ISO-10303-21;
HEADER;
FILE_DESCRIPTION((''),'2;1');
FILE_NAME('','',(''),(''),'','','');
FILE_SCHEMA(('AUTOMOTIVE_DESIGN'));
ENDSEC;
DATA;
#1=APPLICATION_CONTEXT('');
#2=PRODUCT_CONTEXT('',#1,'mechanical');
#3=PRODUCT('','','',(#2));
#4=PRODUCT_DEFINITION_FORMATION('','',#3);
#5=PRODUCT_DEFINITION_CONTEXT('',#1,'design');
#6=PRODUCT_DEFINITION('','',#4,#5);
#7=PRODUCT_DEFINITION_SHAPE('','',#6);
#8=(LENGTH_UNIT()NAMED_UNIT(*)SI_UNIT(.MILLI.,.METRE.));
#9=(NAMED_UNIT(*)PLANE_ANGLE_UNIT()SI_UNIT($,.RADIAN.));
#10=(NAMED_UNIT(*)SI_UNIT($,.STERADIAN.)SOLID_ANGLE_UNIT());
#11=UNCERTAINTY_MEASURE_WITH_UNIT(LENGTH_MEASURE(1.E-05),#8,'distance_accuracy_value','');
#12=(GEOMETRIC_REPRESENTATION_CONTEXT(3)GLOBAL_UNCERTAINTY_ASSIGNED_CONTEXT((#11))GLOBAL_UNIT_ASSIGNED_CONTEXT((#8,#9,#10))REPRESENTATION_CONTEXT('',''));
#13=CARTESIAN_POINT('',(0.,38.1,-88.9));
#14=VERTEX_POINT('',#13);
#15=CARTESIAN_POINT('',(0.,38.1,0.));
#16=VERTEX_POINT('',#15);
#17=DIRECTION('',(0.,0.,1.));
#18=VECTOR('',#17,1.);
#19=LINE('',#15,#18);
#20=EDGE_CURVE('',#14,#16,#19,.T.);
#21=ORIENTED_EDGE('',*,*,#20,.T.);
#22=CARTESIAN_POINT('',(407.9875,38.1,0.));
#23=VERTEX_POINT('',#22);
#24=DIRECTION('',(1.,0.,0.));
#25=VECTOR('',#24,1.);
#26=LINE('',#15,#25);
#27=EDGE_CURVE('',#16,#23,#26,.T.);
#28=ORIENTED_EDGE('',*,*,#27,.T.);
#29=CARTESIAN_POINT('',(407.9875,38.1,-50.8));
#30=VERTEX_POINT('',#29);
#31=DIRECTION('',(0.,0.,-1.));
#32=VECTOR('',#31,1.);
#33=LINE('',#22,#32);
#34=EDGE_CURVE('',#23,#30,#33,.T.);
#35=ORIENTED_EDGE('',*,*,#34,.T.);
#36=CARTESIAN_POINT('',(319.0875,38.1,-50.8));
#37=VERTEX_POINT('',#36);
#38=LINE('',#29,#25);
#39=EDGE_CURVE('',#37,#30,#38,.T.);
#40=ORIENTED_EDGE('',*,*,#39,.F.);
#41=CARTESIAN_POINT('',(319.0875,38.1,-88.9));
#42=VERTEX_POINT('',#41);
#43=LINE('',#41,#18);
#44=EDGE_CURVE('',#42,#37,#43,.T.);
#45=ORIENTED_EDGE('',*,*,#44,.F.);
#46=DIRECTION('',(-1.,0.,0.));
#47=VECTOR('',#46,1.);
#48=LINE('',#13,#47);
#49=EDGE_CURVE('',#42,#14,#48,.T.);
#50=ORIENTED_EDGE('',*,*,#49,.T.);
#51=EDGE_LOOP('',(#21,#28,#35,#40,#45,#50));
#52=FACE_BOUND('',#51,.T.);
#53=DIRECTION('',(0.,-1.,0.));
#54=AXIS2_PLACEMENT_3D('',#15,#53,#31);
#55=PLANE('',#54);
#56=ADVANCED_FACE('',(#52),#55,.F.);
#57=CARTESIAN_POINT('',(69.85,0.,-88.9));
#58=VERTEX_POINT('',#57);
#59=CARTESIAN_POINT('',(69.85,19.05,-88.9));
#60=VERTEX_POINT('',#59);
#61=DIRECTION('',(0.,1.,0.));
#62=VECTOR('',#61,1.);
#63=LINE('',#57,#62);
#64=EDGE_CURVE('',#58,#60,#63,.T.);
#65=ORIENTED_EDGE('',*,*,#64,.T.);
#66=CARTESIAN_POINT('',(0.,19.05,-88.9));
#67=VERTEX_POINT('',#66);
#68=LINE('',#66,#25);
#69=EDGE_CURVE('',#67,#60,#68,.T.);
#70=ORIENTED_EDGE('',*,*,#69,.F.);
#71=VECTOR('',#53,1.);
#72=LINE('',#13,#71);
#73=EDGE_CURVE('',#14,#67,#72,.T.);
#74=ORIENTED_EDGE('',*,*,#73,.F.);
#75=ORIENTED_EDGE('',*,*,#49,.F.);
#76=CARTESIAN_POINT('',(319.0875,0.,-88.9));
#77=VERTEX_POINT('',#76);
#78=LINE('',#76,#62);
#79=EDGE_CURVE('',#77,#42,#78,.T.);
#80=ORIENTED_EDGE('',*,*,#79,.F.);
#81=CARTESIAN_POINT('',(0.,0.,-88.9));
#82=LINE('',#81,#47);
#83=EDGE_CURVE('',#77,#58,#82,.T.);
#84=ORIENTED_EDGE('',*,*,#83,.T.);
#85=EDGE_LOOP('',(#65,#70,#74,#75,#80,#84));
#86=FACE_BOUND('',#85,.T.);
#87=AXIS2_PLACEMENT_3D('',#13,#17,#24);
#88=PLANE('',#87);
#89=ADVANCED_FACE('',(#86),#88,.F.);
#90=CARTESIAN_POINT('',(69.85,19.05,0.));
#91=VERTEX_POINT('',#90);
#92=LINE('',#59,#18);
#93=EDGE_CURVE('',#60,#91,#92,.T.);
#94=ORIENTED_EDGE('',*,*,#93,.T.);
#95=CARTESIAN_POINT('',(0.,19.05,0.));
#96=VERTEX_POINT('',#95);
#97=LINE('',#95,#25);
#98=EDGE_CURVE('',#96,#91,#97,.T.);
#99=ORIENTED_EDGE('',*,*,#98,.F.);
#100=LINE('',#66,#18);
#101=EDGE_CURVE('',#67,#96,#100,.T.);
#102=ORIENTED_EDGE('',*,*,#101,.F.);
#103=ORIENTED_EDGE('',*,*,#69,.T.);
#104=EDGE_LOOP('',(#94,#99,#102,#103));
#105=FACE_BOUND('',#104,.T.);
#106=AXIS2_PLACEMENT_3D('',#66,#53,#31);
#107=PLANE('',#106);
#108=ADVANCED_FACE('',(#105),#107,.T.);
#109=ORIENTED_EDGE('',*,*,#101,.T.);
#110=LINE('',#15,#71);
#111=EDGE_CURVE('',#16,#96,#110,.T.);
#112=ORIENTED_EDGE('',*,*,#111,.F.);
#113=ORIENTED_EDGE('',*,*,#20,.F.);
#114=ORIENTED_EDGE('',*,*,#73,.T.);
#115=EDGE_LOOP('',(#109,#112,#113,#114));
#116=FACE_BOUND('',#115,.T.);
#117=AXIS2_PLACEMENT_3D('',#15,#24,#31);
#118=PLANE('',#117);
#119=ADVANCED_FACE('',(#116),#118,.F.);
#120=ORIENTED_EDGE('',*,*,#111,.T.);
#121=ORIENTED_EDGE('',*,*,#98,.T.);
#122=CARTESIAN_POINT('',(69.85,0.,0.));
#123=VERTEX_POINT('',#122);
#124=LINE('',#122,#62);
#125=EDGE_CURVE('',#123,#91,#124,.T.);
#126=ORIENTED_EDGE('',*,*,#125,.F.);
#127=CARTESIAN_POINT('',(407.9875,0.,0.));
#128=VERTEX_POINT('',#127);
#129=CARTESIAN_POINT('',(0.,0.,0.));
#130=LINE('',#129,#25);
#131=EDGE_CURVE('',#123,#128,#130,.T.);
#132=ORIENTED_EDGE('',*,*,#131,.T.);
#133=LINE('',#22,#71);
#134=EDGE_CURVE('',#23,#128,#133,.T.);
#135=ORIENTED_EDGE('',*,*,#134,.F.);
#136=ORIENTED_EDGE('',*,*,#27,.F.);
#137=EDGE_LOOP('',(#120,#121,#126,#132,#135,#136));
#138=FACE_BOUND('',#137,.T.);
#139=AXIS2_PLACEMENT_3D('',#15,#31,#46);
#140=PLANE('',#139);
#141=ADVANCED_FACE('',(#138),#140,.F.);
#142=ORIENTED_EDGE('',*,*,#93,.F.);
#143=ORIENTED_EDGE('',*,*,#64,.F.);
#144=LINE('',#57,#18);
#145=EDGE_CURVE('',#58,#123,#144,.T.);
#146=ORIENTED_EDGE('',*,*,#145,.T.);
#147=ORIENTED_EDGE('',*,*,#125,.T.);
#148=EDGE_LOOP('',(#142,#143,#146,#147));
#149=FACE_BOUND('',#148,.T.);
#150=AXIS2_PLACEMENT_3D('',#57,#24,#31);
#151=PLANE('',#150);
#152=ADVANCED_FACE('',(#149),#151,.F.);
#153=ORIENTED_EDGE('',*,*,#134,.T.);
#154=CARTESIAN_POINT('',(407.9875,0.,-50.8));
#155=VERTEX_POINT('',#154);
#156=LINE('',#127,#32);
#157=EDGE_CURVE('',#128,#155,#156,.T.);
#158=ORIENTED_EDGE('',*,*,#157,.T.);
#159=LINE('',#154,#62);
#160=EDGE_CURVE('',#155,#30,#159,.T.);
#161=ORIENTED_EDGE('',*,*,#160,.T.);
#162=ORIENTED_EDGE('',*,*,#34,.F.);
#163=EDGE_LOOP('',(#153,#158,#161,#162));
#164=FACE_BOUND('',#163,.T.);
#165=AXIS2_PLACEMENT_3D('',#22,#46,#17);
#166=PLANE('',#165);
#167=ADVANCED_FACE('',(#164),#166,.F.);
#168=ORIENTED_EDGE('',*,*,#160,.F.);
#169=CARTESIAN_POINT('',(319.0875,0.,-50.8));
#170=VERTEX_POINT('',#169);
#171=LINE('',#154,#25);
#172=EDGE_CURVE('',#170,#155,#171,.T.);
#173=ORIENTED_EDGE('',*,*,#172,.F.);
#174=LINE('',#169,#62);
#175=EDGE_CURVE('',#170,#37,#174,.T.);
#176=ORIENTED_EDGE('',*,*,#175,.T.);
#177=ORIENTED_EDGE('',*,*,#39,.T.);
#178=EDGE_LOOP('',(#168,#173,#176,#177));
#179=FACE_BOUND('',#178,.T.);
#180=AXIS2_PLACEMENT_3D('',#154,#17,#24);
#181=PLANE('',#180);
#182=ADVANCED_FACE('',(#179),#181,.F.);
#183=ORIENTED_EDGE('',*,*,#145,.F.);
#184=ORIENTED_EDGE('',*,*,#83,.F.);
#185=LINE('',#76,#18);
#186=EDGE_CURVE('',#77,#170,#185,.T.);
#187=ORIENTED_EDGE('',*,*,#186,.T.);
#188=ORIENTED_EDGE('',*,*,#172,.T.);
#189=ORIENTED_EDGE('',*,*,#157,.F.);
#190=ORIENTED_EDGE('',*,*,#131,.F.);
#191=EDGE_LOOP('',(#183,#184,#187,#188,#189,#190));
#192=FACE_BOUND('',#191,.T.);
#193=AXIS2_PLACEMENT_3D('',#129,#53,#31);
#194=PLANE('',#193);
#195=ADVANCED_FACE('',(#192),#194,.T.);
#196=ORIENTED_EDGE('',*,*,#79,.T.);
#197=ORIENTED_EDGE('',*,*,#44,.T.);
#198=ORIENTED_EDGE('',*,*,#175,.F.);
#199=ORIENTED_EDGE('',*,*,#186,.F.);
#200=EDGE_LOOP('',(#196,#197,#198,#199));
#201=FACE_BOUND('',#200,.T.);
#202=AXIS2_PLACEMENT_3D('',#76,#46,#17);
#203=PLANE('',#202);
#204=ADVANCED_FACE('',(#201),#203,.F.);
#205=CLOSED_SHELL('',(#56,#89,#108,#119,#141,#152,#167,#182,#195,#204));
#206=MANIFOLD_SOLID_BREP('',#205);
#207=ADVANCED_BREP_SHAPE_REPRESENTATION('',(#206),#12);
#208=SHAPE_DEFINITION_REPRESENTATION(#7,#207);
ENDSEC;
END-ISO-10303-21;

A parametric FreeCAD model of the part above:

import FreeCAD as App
import Part
import Sketcher
Q = App.Units.Quantity

doc = App.newDocument("Part")
body = doc.addObject("PartDesign::Body", "Body")

# Sketch on XZ plane
sketch1 = body.newObject("Sketcher::SketchObject", "Sketch")
sketch1.AttachmentSupport = (doc.getObject("XZ_Plane"), [""])
sketch1.MapMode = "FlatFace"
sketch1.addGeometry(Part.LineSegment(App.Vector(0, -89, 0), App.Vector(0, 0, 0)), False)
sketch1.addGeometry(Part.LineSegment(App.Vector(0, 0, 0), App.Vector(408, 0, 0)), False)
sketch1.addGeometry(Part.LineSegment(App.Vector(408, 0, 0), App.Vector(408, -89, 0)), False)
sketch1.addGeometry(Part.LineSegment(App.Vector(408, -89, 0), App.Vector(0, -89, 0)), False)
sketch1.addConstraint(Sketcher.Constraint("Coincident", 0, 2, 1, 1))
sketch1.addConstraint(Sketcher.Constraint("Coincident", 1, 2, 2, 1))
sketch1.addConstraint(Sketcher.Constraint("Coincident", 2, 2, 3, 1))
sketch1.addConstraint(Sketcher.Constraint("Coincident", 3, 2, 0, 1))
sketch1.addConstraint(Sketcher.Constraint("Vertical", 0))
sketch1.addConstraint(Sketcher.Constraint("Horizontal", 1))
sketch1.addConstraint(Sketcher.Constraint("Vertical", 2))
sketch1.addConstraint(Sketcher.Constraint("Horizontal", 3))
sketch1.addConstraint(Sketcher.Constraint("Coincident", 0, 2, -1, 1))
sketch1.addConstraint(Sketcher.Constraint("DistanceY", 0, 1, 0, 2, Q("3.5 in")))
sketch1.addConstraint(Sketcher.Constraint("DistanceX", 1, 1, 1, 2, Q("16.0625 in")))
pad1 = body.newObject("PartDesign::Pad", "Pad")
pad1.Profile = sketch1
pad1.Length = Q("1.5 in")
pad1.Reversed = True

# Sketch on XZ plane
sketch2 = body.newObject("Sketcher::SketchObject", "Sketch001")
sketch2.AttachmentSupport = (doc.getObject("XZ_Plane"), [""])
sketch2.MapMode = "FlatFace"
sketch2.AttachmentOffset = App.Placement(App.Vector(0, 0, -1.5 * 25.4), App.Rotation())
sketch2.addGeometry(Part.LineSegment(App.Vector(319, -89, 0), App.Vector(319, -51, 0)), False)
sketch2.addGeometry(Part.LineSegment(App.Vector(319, -51, 0), App.Vector(408, -51, 0)), False)
sketch2.addGeometry(Part.LineSegment(App.Vector(408, -51, 0), App.Vector(408, -89, 0)), False)
sketch2.addGeometry(Part.LineSegment(App.Vector(408, -89, 0), App.Vector(319, -89, 0)), False)
sketch2.addConstraint(Sketcher.Constraint("Coincident", 0, 2, 1, 1))
sketch2.addConstraint(Sketcher.Constraint("Coincident", 1, 2, 2, 1))
sketch2.addConstraint(Sketcher.Constraint("Coincident", 2, 2, 3, 1))
sketch2.addConstraint(Sketcher.Constraint("Coincident", 3, 2, 0, 1))
sketch2.addConstraint(Sketcher.Constraint("Vertical", 0))
sketch2.addConstraint(Sketcher.Constraint("Horizontal", 1))
sketch2.addConstraint(Sketcher.Constraint("Vertical", 2))
sketch2.addConstraint(Sketcher.Constraint("Horizontal", 3))
sketch2.addConstraint(Sketcher.Constraint("DistanceX", 1, 1, 1, 2, Q("3.5 in")))
sketch2.addConstraint(Sketcher.Constraint("DistanceY", 0, 1, 0, 2, Q("1.5 in")))
sketch2.addConstraint(Sketcher.Constraint("DistanceY", 0, 2, -1, 1, Q("2 in")))
sketch2.addConstraint(Sketcher.Constraint("DistanceX", -1, 1, 0, 2, Q("12.5625 in")))
pocket1 = body.newObject("PartDesign::Pocket", "Pocket")
pocket1.Profile = sketch2
pocket1.Type = "ThroughAll"
pocket1.Reversed = True

# Sketch on XY plane
sketch3 = body.newObject("Sketcher::SketchObject", "Sketch002")
sketch3.AttachmentSupport = (doc.getObject("XY_Plane"), [""])
sketch3.MapMode = "FlatFace"
sketch3.addGeometry(Part.LineSegment(App.Vector(0, 19, 0), App.Vector(0, 0, 0)), False)
sketch3.addGeometry(Part.LineSegment(App.Vector(0, 0, 0), App.Vector(70, 0, 0)), False)
sketch3.addGeometry(Part.LineSegment(App.Vector(70, 0, 0), App.Vector(70, 19, 0)), False)
sketch3.addGeometry(Part.LineSegment(App.Vector(70, 19, 0), App.Vector(0, 19, 0)), False)
sketch3.addConstraint(Sketcher.Constraint("Coincident", 0, 2, 1, 1))
sketch3.addConstraint(Sketcher.Constraint("Coincident", 1, 2, 2, 1))
sketch3.addConstraint(Sketcher.Constraint("Coincident", 2, 2, 3, 1))
sketch3.addConstraint(Sketcher.Constraint("Coincident", 3, 2, 0, 1))
sketch3.addConstraint(Sketcher.Constraint("Vertical", 0))
sketch3.addConstraint(Sketcher.Constraint("Horizontal", 1))
sketch3.addConstraint(Sketcher.Constraint("Vertical", 2))
sketch3.addConstraint(Sketcher.Constraint("Horizontal", 3))
sketch3.addConstraint(Sketcher.Constraint("Coincident", 0, 2, -1, 1))
sketch3.addConstraint(Sketcher.Constraint("DistanceX", 1, 1, 1, 2, Q("2.75 in")))
sketch3.addConstraint(Sketcher.Constraint("DistanceY", 0, 2, 0, 1, Q("0.75 in")))
pocket2 = body.newObject("PartDesign::Pocket", "Pocket001")
pocket2.Profile = sketch3
pocket2.Type = "ThroughAll"

doc.recompute()
